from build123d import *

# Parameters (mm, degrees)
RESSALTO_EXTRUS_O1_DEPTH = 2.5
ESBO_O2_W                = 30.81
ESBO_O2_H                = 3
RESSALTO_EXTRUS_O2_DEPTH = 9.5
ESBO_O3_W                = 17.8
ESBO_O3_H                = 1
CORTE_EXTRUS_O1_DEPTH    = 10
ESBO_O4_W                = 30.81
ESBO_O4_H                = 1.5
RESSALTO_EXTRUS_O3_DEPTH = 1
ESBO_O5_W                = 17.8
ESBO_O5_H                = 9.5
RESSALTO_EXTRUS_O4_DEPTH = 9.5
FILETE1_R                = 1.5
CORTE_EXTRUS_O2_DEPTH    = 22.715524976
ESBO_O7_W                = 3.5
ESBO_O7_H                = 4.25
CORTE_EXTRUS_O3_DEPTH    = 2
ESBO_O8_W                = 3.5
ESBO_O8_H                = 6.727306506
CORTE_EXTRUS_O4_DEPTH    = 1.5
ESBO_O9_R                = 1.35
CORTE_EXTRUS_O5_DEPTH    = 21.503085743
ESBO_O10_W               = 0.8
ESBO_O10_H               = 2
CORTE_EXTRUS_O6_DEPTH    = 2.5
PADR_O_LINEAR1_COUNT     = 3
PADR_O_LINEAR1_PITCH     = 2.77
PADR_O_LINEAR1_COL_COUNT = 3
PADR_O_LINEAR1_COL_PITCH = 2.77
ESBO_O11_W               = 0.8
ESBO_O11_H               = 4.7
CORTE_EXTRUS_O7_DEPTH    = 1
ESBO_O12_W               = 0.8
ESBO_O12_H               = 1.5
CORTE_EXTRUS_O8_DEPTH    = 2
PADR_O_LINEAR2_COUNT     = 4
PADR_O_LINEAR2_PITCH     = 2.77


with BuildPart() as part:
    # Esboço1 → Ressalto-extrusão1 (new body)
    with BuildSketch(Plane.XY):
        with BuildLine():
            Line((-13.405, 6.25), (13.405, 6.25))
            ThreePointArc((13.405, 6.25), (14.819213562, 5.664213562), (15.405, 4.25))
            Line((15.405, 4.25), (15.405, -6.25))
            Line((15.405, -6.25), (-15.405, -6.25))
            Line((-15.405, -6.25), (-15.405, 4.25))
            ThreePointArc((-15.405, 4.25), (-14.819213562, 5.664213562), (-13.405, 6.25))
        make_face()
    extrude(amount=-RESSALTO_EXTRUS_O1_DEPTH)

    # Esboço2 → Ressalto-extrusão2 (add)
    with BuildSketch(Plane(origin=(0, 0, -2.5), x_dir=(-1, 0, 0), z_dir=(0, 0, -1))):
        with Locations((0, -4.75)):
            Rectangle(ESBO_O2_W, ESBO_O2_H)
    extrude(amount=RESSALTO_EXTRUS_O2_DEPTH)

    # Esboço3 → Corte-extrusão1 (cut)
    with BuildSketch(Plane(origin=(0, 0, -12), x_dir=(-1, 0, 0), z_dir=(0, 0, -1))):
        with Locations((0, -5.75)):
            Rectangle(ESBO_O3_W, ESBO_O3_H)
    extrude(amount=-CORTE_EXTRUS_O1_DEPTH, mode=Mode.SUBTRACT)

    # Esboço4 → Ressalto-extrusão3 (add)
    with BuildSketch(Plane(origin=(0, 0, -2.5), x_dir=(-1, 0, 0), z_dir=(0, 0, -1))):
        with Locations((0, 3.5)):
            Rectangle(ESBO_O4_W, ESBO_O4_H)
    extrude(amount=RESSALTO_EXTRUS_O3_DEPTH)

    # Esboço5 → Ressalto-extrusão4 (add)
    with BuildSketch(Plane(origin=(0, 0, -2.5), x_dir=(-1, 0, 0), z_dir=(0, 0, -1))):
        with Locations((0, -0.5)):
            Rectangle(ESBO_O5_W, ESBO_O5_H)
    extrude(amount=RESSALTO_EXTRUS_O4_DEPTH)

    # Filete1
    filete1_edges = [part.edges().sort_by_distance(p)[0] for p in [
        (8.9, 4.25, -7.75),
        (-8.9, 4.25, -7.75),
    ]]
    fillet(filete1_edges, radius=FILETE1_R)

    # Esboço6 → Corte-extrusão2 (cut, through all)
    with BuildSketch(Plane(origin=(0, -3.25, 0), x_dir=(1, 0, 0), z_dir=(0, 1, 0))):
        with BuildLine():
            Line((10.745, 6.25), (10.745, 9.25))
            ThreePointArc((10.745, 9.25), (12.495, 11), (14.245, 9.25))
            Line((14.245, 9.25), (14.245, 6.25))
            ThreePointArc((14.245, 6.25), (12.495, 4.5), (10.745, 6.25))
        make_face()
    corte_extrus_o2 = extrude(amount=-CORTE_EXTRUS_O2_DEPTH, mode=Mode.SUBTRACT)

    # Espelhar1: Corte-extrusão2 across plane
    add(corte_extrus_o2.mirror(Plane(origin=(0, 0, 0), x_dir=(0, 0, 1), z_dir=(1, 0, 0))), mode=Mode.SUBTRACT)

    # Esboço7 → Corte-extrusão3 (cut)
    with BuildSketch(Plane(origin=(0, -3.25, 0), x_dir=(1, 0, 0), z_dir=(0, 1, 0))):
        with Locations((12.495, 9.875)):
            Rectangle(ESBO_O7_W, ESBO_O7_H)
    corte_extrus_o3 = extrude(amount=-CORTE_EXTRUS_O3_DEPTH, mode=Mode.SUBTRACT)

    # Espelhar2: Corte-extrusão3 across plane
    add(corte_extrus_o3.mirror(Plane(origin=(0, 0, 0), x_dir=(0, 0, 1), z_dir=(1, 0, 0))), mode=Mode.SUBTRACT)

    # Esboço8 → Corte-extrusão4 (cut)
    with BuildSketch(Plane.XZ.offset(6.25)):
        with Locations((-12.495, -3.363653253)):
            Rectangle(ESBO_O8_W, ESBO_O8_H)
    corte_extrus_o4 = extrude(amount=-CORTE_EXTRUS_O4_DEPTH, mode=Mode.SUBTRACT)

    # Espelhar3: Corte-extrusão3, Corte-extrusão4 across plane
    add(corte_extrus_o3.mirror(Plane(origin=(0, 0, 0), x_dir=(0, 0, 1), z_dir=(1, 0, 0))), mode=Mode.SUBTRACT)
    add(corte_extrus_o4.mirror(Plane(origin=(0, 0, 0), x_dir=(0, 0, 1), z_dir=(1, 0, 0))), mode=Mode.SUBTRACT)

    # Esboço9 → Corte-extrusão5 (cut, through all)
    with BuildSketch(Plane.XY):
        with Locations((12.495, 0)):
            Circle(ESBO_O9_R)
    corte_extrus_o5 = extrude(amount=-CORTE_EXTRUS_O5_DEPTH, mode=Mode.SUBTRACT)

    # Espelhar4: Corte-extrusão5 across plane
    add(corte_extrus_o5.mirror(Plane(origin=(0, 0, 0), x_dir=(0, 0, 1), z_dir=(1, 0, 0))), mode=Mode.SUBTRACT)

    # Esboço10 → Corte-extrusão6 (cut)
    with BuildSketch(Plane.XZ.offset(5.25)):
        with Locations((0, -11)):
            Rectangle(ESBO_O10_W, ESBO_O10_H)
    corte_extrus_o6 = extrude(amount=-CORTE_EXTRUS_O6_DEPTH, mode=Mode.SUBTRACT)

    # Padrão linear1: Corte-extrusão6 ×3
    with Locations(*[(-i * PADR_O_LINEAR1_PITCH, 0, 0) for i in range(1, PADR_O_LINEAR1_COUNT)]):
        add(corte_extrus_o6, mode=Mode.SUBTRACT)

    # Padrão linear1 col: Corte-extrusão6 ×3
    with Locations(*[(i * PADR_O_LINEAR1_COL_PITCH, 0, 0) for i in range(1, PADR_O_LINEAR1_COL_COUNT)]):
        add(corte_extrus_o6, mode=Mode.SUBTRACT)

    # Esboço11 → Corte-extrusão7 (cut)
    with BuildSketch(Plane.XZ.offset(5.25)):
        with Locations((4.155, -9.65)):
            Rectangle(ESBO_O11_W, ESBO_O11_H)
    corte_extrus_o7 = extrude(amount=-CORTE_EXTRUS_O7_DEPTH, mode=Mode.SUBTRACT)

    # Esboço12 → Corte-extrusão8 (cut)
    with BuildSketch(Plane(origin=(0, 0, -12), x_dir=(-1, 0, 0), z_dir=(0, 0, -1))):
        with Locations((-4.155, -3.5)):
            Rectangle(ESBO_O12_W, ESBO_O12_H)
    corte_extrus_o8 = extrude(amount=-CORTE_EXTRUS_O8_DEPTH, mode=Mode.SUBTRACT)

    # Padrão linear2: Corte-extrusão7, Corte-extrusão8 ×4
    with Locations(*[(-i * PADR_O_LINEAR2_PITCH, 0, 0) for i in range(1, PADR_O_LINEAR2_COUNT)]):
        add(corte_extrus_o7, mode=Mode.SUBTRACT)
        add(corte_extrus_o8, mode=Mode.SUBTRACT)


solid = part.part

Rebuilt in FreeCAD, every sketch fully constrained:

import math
import FreeCAD as App
import Part
import Sketcher
from FreeCAD import Vector
Q = App.Units.Quantity


def edges_at(feature, points):
    """Names of the edges that pass closest to the given points."""
    edges = feature.Shape.Edges
    near = lambda p: min(range(len(edges)), key=lambda i: edges[i].distToShape(Part.Vertex(*p))[0])
    return sorted({f"Edge{near(p) + 1}" for p in points})

doc = App.newDocument("Part")
body = doc.addObject("PartDesign::Body", "Body")

sketch1 = body.newObject("Sketcher::SketchObject", "Sketch")
sketch1.AttachmentSupport = (doc.getObject("XY_Plane"), [""])
sketch1.MapMode = "FlatFace"
sketch1.addGeometry([
    Part.LineSegment(Vector(13.405, 6.25, 0), Vector(-13.405, 6.25, 0)),
    Part.ArcOfCircle(Part.Circle(Vector(-13.405, 4.25, 0), Vector(0, 0, 1), 2), math.radians(90), math.radians(180)),
    Part.LineSegment(Vector(-15.405, 4.25, 0), Vector(-15.405, -6.25, 0)),
    Part.LineSegment(Vector(-15.405, -6.25, 0), Vector(15.405, -6.25, 0)),
    Part.LineSegment(Vector(15.405, -6.25, 0), Vector(15.405, 4.25, 0)),
    Part.ArcOfCircle(Part.Circle(Vector(13.405, 4.25, 0), Vector(0, 0, 1), 2), math.radians(0), math.radians(90)),
], False)
sketch1.addConstraint([
    Sketcher.Constraint("Tangent", 0, 2, 1, 1),
    Sketcher.Constraint("Tangent", 1, 2, 2, 1),
    Sketcher.Constraint("Coincident", 2, 2, 3, 1),
    Sketcher.Constraint("Coincident", 3, 2, 4, 1),
    Sketcher.Constraint("Tangent", 4, 2, 5, 1),
    Sketcher.Constraint("Tangent", 5, 2, 0, 1),
    Sketcher.Constraint("Horizontal", 0),
    Sketcher.Constraint("Vertical", 2),
    Sketcher.Constraint("Horizontal", 3),
    Sketcher.Constraint("Vertical", 4),
    Sketcher.Constraint("Equal", 1, 5),
    Sketcher.Constraint("Radius", 1, Q("2 mm")),
    Sketcher.Constraint("DistanceY", 2, 2, 2, 1, Q("10.5 mm")),
    Sketcher.Constraint("DistanceX", 0, 2, 0, 1, Q("26.81 mm")),
    Sketcher.Constraint("DistanceY", -1, 1, 1, 3, Q("4.25 mm")),
    Sketcher.Constraint("DistanceX", 1, 3, -1, 1, Q("13.405 mm")),
])
pad1 = body.newObject("PartDesign::Pad", "Pad")
pad1.Profile = sketch1
pad1.Length = 2.5
pad1.Reversed = True

sketch2 = body.newObject("Sketcher::SketchObject", "Sketch001")
sketch2.AttachmentSupport = (doc.getObject("XY_Plane"), [""])
sketch2.MapMode = "FlatFace"
sketch2.AttachmentOffset = App.Placement(Vector(0, 0, -2.5), App.Rotation())
sketch2.addGeometry([
    Part.LineSegment(Vector(15.405, -3.25, 0), Vector(15.405, -6.25, 0)),
    Part.LineSegment(Vector(15.405, -6.25, 0), Vector(-15.405, -6.25, 0)),
    Part.LineSegment(Vector(-15.405, -6.25, 0), Vector(-15.405, -3.25, 0)),
    Part.LineSegment(Vector(-15.405, -3.25, 0), Vector(15.405, -3.25, 0)),
], False)
sketch2.addConstraint([
    Sketcher.Constraint("Coincident", 0, 2, 1, 1),
    Sketcher.Constraint("Coincident", 1, 2, 2, 1),
    Sketcher.Constraint("Coincident", 2, 2, 3, 1),
    Sketcher.Constraint("Coincident", 3, 2, 0, 1),
    Sketcher.Constraint("Vertical", 0),
    Sketcher.Constraint("Horizontal", 1),
    Sketcher.Constraint("Vertical", 2),
    Sketcher.Constraint("Horizontal", 3),
    Sketcher.Constraint("DistanceY", 0, 2, 0, 1, Q("3 mm")),
    Sketcher.Constraint("DistanceX", 1, 2, 1, 1, Q("30.81 mm")),
    Sketcher.Constraint("DistanceY", 0, 2, -1, 1, Q("6.25 mm")),
    Sketcher.Constraint("DistanceX", -1, 1, 0, 2, Q("15.405 mm")),
])
pad2 = body.newObject("PartDesign::Pad", "Pad001")
pad2.Profile = sketch2
pad2.Length = 9.5
pad2.Reversed = True

sketch3 = body.newObject("Sketcher::SketchObject", "Sketch002")
sketch3.AttachmentSupport = (doc.getObject("XY_Plane"), [""])
sketch3.MapMode = "FlatFace"
sketch3.AttachmentOffset = App.Placement(Vector(0, 0, -12), App.Rotation())
sketch3.addGeometry([
    Part.LineSegment(Vector(8.9, -5.25, 0), Vector(8.9, -6.25, 0)),
    Part.LineSegment(Vector(8.9, -6.25, 0), Vector(-8.9, -6.25, 0)),
    Part.LineSegment(Vector(-8.9, -6.25, 0), Vector(-8.9, -5.25, 0)),
    Part.LineSegment(Vector(-8.9, -5.25, 0), Vector(8.9, -5.25, 0)),
], False)
sketch3.addConstraint([
    Sketcher.Constraint("Coincident", 0, 2, 1, 1),
    Sketcher.Constraint("Coincident", 1, 2, 2, 1),
    Sketcher.Constraint("Coincident", 2, 2, 3, 1),
    Sketcher.Constraint("Coincident", 3, 2, 0, 1),
    Sketcher.Constraint("Vertical", 0),
    Sketcher.Constraint("Horizontal", 1),
    Sketcher.Constraint("Vertical", 2),
    Sketcher.Constraint("Horizontal", 3),
    Sketcher.Constraint("DistanceY", 0, 2, 0, 1, Q("1 mm")),
    Sketcher.Constraint("DistanceX", 1, 2, 1, 1, Q("17.8 mm")),
    Sketcher.Constraint("DistanceX", -1, 1, 0, 2, Q("8.9 mm")),
    Sketcher.Constraint("DistanceY", 0, 2, -1, 1, Q("6.25 mm")),
])
pocket1 = body.newObject("PartDesign::Pocket", "Pocket")
pocket1.Profile = sketch3
pocket1.Length = 10
pocket1.Reversed = True

sketch4 = body.newObject("Sketcher::SketchObject", "Sketch003")
sketch4.AttachmentSupport = (doc.getObject("XY_Plane"), [""])
sketch4.MapMode = "FlatFace"
sketch4.AttachmentOffset = App.Placement(Vector(0, 0, -2.5), App.Rotation())
sketch4.addGeometry([
    Part.LineSegment(Vector(15.405, 4.25, 0), Vector(15.405, 2.75, 0)),
    Part.LineSegment(Vector(15.405, 2.75, 0), Vector(-15.405, 2.75, 0)),
    Part.LineSegment(Vector(-15.405, 2.75, 0), Vector(-15.405, 4.25, 0)),
    Part.LineSegment(Vector(-15.405, 4.25, 0), Vector(15.405, 4.25, 0)),
], False)
sketch4.addConstraint([
    Sketcher.Constraint("Coincident", 0, 2, 1, 1),
    Sketcher.Constraint("Coincident", 1, 2, 2, 1),
    Sketcher.Constraint("Coincident", 2, 2, 3, 1),
    Sketcher.Constraint("Coincident", 3, 2, 0, 1),
    Sketcher.Constraint("Vertical", 0),
    Sketcher.Constraint("Horizontal", 1),
    Sketcher.Constraint("Vertical", 2),
    Sketcher.Constraint("Horizontal", 3),
    Sketcher.Constraint("DistanceY", 0, 2, 0, 1, Q("1.5 mm")),
    Sketcher.Constraint("DistanceX", 1, 2, 1, 1, Q("30.81 mm")),
    Sketcher.Constraint("DistanceY", -1, 1, 0, 2, Q("2.75 mm")),
    Sketcher.Constraint("DistanceX", -1, 1, 0, 2, Q("15.405 mm")),
])
pad3 = body.newObject("PartDesign::Pad", "Pad002")
pad3.Profile = sketch4
pad3.Length = 1
pad3.Reversed = True

sketch5 = body.newObject("Sketcher::SketchObject", "Sketch004")
sketch5.AttachmentSupport = (doc.getObject("XY_Plane"), [""])
sketch5.MapMode = "FlatFace"
sketch5.AttachmentOffset = App.Placement(Vector(0, 0, -2.5), App.Rotation())
sketch5.addGeometry([
    Part.LineSegment(Vector(8.9, 4.25, 0), Vector(8.9, -5.25, 0)),
    Part.LineSegment(Vector(8.9, -5.25, 0), Vector(-8.9, -5.25, 0)),
    Part.LineSegment(Vector(-8.9, -5.25, 0), Vector(-8.9, 4.25, 0)),
    Part.LineSegment(Vector(-8.9, 4.25, 0), Vector(8.9, 4.25, 0)),
], False)
sketch5.addConstraint([
    Sketcher.Constraint("Coincident", 0, 2, 1, 1),
    Sketcher.Constraint("Coincident", 1, 2, 2, 1),
    Sketcher.Constraint("Coincident", 2, 2, 3, 1),
    Sketcher.Constraint("Coincident", 3, 2, 0, 1),
    Sketcher.Constraint("Vertical", 0),
    Sketcher.Constraint("Horizontal", 1),
    Sketcher.Constraint("Vertical", 2),
    Sketcher.Constraint("Horizontal", 3),
    Sketcher.Constraint("DistanceX", 1, 2, 1, 1, Q("17.8 mm")),
    Sketcher.Constraint("DistanceY", 0, 2, 0, 1, Q("9.5 mm")),
    Sketcher.Constraint("DistanceX", -1, 1, 0, 2, Q("8.9 mm")),
    Sketcher.Constraint("DistanceY", 0, 2, -1, 1, Q("5.25 mm")),
])
pad4 = body.newObject("PartDesign::Pad", "Pad003")
pad4.Profile = sketch5
pad4.Length = 9.5
pad4.Reversed = True
doc.recompute()

fillet = body.newObject("PartDesign::Fillet", "Fillet")
fillet.Base = (pad4, edges_at(pad4, [(8.9, 4.25, -7.75), (-8.9, 4.25, -7.75)]))
fillet.Radius = 1.5

sketch6 = body.newObject("Sketcher::SketchObject", "Sketch005")
sketch6.AttachmentSupport = (doc.getObject("XZ_Plane"), [""])
sketch6.MapMode = "FlatFace"
sketch6.AttachmentOffset = App.Placement(Vector(0, 0, 3.25), App.Rotation())
sketch6.addGeometry([
    Part.LineSegment(Vector(10.745, -9.25, 0), Vector(10.745, -6.25, 0)),
    Part.ArcOfCircle(Part.Circle(Vector(12.495, -6.25, 0), Vector(0, 0, 1), 1.75), math.radians(0), math.radians(180)),
    Part.LineSegment(Vector(14.245, -6.25, 0), Vector(14.245, -9.25, 0)),
    Part.ArcOfCircle(Part.Circle(Vector(12.495, -9.25, 0), Vector(0, 0, 1), 1.75), math.radians(180), math.radians(360)),
], False)
sketch6.addConstraint([
    Sketcher.Constraint("Tangent", 0, 2, 1, 2),
    Sketcher.Constraint("Tangent", 1, 1, 2, 1),
    Sketcher.Constraint("Tangent", 2, 2, 3, 2),
    Sketcher.Constraint("Tangent", 3, 1, 0, 1),
    Sketcher.Constraint("Vertical", 0),
    Sketcher.Constraint("Vertical", 2),
    Sketcher.Constraint("DistanceY", 0, 1, 0, 2, Q("3 mm")),
    Sketcher.Constraint("Radius", 1, Q("1.75 mm")),
    Sketcher.Constraint("DistanceY", 1, 3, -1, 1, Q("6.25 mm")),
    Sketcher.Constraint("DistanceX", -1, 1, 1, 3, Q("12.495 mm")),
])
pocket2 = body.newObject("PartDesign::Pocket", "Pocket001")
pocket2.Profile = sketch6
pocket2.Type = "ThroughAll"
pocket2.Reversed = True
doc.recompute()

mirrored = body.newObject("PartDesign::Mirrored", "Mirrored")
mirrored.Originals = [pocket2]
mirrored.MirrorPlane = (doc.getObject("YZ_Plane"), [""])
body.Tip = mirrored

sketch7 = body.newObject("Sketcher::SketchObject", "Sketch006")
sketch7.AttachmentSupport = (doc.getObject("XZ_Plane"), [""])
sketch7.MapMode = "FlatFace"
sketch7.AttachmentOffset = App.Placement(Vector(0, 0, 3.25), App.Rotation())
sketch7.addGeometry([
    Part.LineSegment(Vector(10.745, -12, 0), Vector(10.745, -7.75, 0)),
    Part.LineSegment(Vector(10.745, -7.75, 0), Vector(14.245, -7.75, 0)),
    Part.LineSegment(Vector(14.245, -7.75, 0), Vector(14.245, -12, 0)),
    Part.LineSegment(Vector(14.245, -12, 0), Vector(10.745, -12, 0)),
], False)
sketch7.addConstraint([
    Sketcher.Constraint("Coincident", 0, 2, 1, 1),
    Sketcher.Constraint("Coincident", 1, 2, 2, 1),
    Sketcher.Constraint("Coincident", 2, 2, 3, 1),
    Sketcher.Constraint("Coincident", 3, 2, 0, 1),
    Sketcher.Constraint("Vertical", 0),
    Sketcher.Constraint("Horizontal", 1),
    Sketcher.Constraint("Vertical", 2),
    Sketcher.Constraint("Horizontal", 3),
    Sketcher.Constraint("DistanceX", 1, 1, 1, 2, Q("3.5 mm")),
    Sketcher.Constraint("DistanceY", 2, 2, -1, 1, Q("12 mm")),
    Sketcher.Constraint("DistanceY", 0, 1, 0, 2, Q("4.25 mm")),
    Sketcher.Constraint("DistanceX", -1, 1, 0, 2, Q("10.745 mm")),
])
pocket3 = body.newObject("PartDesign::Pocket", "Pocket002")
pocket3.Profile = sketch7
pocket3.Length = 2
pocket3.Reversed = True
doc.recompute()

mirrored2 = body.newObject("PartDesign::Mirrored", "Mirrored001")
mirrored2.Originals = [pocket3]
mirrored2.MirrorPlane = (doc.getObject("YZ_Plane"), [""])
body.Tip = mirrored2

sketch8 = body.newObject("Sketcher::SketchObject", "Sketch007")
sketch8.AttachmentSupport = (doc.getObject("XZ_Plane"), [""])
sketch8.MapMode = "FlatFace"
sketch8.AttachmentOffset = App.Placement(Vector(0, 0, 6.25), App.Rotation())
sketch8.addGeometry([
    Part.LineSegment(Vector(-14.245, 0, 0), Vector(-14.245, -6.727307, 0)),
    Part.LineSegment(Vector(-14.245, -6.727307, 0), Vector(-10.745, -6.727307, 0)),
    Part.LineSegment(Vector(-10.745, -6.727307, 0), Vector(-10.745, 0, 0)),
    Part.LineSegment(Vector(-10.745, 0, 0), Vector(-14.245, 0, 0)),
], False)
sketch8.addConstraint([
    Sketcher.Constraint("Coincident", 0, 2, 1, 1),
    Sketcher.Constraint("Coincident", 1, 2, 2, 1),
    Sketcher.Constraint("Coincident", 2, 2, 3, 1),
    Sketcher.Constraint("Coincident", 3, 2, 0, 1),
    Sketcher.Constraint("Vertical", 0),
    Sketcher.Constraint("Horizontal", 1),
    Sketcher.Constraint("Vertical", 2),
    Sketcher.Constraint("Horizontal", 3),
    Sketcher.Constraint("PointOnObject", 2, 2, -1),
    Sketcher.Constraint("DistanceX", 1, 1, 1, 2, Q("3.5 mm")),
    Sketcher.Constraint("DistanceX", 0, 2, -1, 1, Q("14.245 mm")),
    Sketcher.Constraint("DistanceY", 0, 2, 0, 1, Q("6.727307 mm")),
])
pocket4 = body.newObject("PartDesign::Pocket", "Pocket003")
pocket4.Profile = sketch8
pocket4.Length = 1.5
doc.recompute()

mirrored3 = body.newObject("PartDesign::Mirrored", "Mirrored002")
mirrored3.Originals = [pocket3, pocket4]
mirrored3.MirrorPlane = (doc.getObject("YZ_Plane"), [""])
body.Tip = mirrored3

sketch9 = body.newObject("Sketcher::SketchObject", "Sketch008")
sketch9.AttachmentSupport = (doc.getObject("XY_Plane"), [""])
sketch9.MapMode = "FlatFace"
sketch9.addGeometry(Part.Circle(Vector(12.495, 0, 0), Vector(0, 0, 1), 1.35), False)
sketch9.addConstraint([
    Sketcher.Constraint("PointOnObject", 0, 3, -1),
    Sketcher.Constraint("Diameter", 0, Q("2.7 mm")),
    Sketcher.Constraint("DistanceX", -1, 1, 0, 3, Q("12.495 mm")),
])
pocket5 = body.newObject("PartDesign::Pocket", "Pocket004")
pocket5.Profile = sketch9
pocket5.Type = "ThroughAll"
doc.recompute()

mirrored4 = body.newObject("PartDesign::Mirrored", "Mirrored003")
mirrored4.Originals = [pocket5]
mirrored4.MirrorPlane = (doc.getObject("YZ_Plane"), [""])
body.Tip = mirrored4

sketch10 = body.newObject("Sketcher::SketchObject", "Sketch009")
sketch10.AttachmentSupport = (doc.getObject("XZ_Plane"), [""])
sketch10.MapMode = "FlatFace"
sketch10.AttachmentOffset = App.Placement(Vector(0, 0, 5.25), App.Rotation())
sketch10.addGeometry([
    Part.LineSegment(Vector(-0.4, -10, 0), Vector(-0.4, -12, 0)),
    Part.LineSegment(Vector(-0.4, -12, 0), Vector(0.4, -12, 0)),
    Part.LineSegment(Vector(0.4, -12, 0), Vector(0.4, -10, 0)),
    Part.LineSegment(Vector(0.4, -10, 0), Vector(-0.4, -10, 0)),
], False)
sketch10.addConstraint([
    Sketcher.Constraint("Coincident", 0, 2, 1, 1),
    Sketcher.Constraint("Coincident", 1, 2, 2, 1),
    Sketcher.Constraint("Coincident", 2, 2, 3, 1),
    Sketcher.Constraint("Coincident", 3, 2, 0, 1),
    Sketcher.Constraint("Vertical", 0),
    Sketcher.Constraint("Horizontal", 1),
    Sketcher.Constraint("Vertical", 2),
    Sketcher.Constraint("Horizontal", 3),
    Sketcher.Constraint("DistanceY", 0, 2, 0, 1, Q("2 mm")),
    Sketcher.Constraint("DistanceX", 1, 1, 1, 2, Q("0.8 mm")),
    Sketcher.Constraint("DistanceY", 0, 2, -1, 1, Q("12 mm")),
    Sketcher.Constraint("DistanceX", 0, 2, -1, 1, Q("0.4 mm")),
])
pocket6 = body.newObject("PartDesign::Pocket", "Pocket005")
pocket6.Profile = sketch10
pocket6.Length = 2.5
doc.recompute()

linearpattern = body.newObject("PartDesign::LinearPattern", "LinearPattern")
linearpattern.Originals = [pocket6]
linearpattern.Direction = (doc.getObject("X_Axis"), [""])
linearpattern.Mode = "offset"
linearpattern.Offset = 2.77
linearpattern.Occurrences = 3
linearpattern.Reversed = True
body.Tip = linearpattern
doc.recompute()

linearpattern2 = body.newObject("PartDesign::LinearPattern", "LinearPattern001")
linearpattern2.Originals = [pocket6]
linearpattern2.Direction = (doc.getObject("X_Axis"), [""])
linearpattern2.Mode = "offset"
linearpattern2.Offset = 2.77
linearpattern2.Occurrences = 3
body.Tip = linearpattern2

sketch11 = body.newObject("Sketcher::SketchObject", "Sketch010")
sketch11.AttachmentSupport = (doc.getObject("XZ_Plane"), [""])
sketch11.MapMode = "FlatFace"
sketch11.AttachmentOffset = App.Placement(Vector(0, 0, 5.25), App.Rotation())
sketch11.addGeometry([
    Part.LineSegment(Vector(3.755, -7.3, 0), Vector(3.755, -12, 0)),
    Part.LineSegment(Vector(3.755, -12, 0), Vector(4.555, -12, 0)),
    Part.LineSegment(Vector(4.555, -12, 0), Vector(4.555, -7.3, 0)),
    Part.LineSegment(Vector(4.555, -7.3, 0), Vector(3.755, -7.3, 0)),
], False)
sketch11.addConstraint([
    Sketcher.Constraint("Coincident", 0, 2, 1, 1),
    Sketcher.Constraint("Coincident", 1, 2, 2, 1),
    Sketcher.Constraint("Coincident", 2, 2, 3, 1),
    Sketcher.Constraint("Coincident", 3, 2, 0, 1),
    Sketcher.Constraint("Vertical", 0),
    Sketcher.Constraint("Horizontal", 1),
    Sketcher.Constraint("Vertical", 2),
    Sketcher.Constraint("Horizontal", 3),
    Sketcher.Constraint("DistanceX", 1, 1, 1, 2, Q("0.8 mm")),
    Sketcher.Constraint("DistanceY", 0, 2, 0, 1, Q("4.7 mm")),
    Sketcher.Constraint("DistanceY", 0, 2, -1, 1, Q("12 mm")),
    Sketcher.Constraint("DistanceX", -1, 1, 0, 2, Q("3.755 mm")),
])
pocket7 = body.newObject("PartDesign::Pocket", "Pocket006")
pocket7.Profile = sketch11
pocket7.Length = 1

sketch12 = body.newObject("Sketcher::SketchObject", "Sketch011")
sketch12.AttachmentSupport = (doc.getObject("XY_Plane"), [""])
sketch12.MapMode = "FlatFace"
sketch12.AttachmentOffset = App.Placement(Vector(0, 0, -12), App.Rotation())
sketch12.addGeometry([
    Part.LineSegment(Vector(4.555, -2.75, 0), Vector(4.555, -4.25, 0)),
    Part.LineSegment(Vector(4.555, -4.25, 0), Vector(3.755, -4.25, 0)),
    Part.LineSegment(Vector(3.755, -4.25, 0), Vector(3.755, -2.75, 0)),
    Part.LineSegment(Vector(3.755, -2.75, 0), Vector(4.555, -2.75, 0)),
], False)
sketch12.addConstraint([
    Sketcher.Constraint("Coincident", 0, 2, 1, 1),
    Sketcher.Constraint("Coincident", 1, 2, 2, 1),
    Sketcher.Constraint("Coincident", 2, 2, 3, 1),
    Sketcher.Constraint("Coincident", 3, 2, 0, 1),
    Sketcher.Constraint("Vertical", 0),
    Sketcher.Constraint("Horizontal", 1),
    Sketcher.Constraint("Vertical", 2),
    Sketcher.Constraint("Horizontal", 3),
    Sketcher.Constraint("DistanceX", 1, 2, 1, 1, Q("0.8 mm")),
    Sketcher.Constraint("DistanceY", 0, 2, 0, 1, Q("1.5 mm")),
    Sketcher.Constraint("DistanceY", 0, 2, -1, 1, Q("4.25 mm")),
    Sketcher.Constraint("DistanceX", -1, 1, 0, 2, Q("4.555 mm")),
])
pocket8 = body.newObject("PartDesign::Pocket", "Pocket007")
pocket8.Profile = sketch12
pocket8.Length = 2
pocket8.Reversed = True
doc.recompute()

linearpattern3 = body.newObject("PartDesign::LinearPattern", "LinearPattern002")
linearpattern3.Originals = [pocket7, pocket8]
linearpattern3.Direction = (doc.getObject("X_Axis"), [""])
linearpattern3.Mode = "offset"
linearpattern3.Offset = 2.77
linearpattern3.Occurrences = 4
linearpattern3.Reversed = True
body.Tip = linearpattern3

doc.recompute()
